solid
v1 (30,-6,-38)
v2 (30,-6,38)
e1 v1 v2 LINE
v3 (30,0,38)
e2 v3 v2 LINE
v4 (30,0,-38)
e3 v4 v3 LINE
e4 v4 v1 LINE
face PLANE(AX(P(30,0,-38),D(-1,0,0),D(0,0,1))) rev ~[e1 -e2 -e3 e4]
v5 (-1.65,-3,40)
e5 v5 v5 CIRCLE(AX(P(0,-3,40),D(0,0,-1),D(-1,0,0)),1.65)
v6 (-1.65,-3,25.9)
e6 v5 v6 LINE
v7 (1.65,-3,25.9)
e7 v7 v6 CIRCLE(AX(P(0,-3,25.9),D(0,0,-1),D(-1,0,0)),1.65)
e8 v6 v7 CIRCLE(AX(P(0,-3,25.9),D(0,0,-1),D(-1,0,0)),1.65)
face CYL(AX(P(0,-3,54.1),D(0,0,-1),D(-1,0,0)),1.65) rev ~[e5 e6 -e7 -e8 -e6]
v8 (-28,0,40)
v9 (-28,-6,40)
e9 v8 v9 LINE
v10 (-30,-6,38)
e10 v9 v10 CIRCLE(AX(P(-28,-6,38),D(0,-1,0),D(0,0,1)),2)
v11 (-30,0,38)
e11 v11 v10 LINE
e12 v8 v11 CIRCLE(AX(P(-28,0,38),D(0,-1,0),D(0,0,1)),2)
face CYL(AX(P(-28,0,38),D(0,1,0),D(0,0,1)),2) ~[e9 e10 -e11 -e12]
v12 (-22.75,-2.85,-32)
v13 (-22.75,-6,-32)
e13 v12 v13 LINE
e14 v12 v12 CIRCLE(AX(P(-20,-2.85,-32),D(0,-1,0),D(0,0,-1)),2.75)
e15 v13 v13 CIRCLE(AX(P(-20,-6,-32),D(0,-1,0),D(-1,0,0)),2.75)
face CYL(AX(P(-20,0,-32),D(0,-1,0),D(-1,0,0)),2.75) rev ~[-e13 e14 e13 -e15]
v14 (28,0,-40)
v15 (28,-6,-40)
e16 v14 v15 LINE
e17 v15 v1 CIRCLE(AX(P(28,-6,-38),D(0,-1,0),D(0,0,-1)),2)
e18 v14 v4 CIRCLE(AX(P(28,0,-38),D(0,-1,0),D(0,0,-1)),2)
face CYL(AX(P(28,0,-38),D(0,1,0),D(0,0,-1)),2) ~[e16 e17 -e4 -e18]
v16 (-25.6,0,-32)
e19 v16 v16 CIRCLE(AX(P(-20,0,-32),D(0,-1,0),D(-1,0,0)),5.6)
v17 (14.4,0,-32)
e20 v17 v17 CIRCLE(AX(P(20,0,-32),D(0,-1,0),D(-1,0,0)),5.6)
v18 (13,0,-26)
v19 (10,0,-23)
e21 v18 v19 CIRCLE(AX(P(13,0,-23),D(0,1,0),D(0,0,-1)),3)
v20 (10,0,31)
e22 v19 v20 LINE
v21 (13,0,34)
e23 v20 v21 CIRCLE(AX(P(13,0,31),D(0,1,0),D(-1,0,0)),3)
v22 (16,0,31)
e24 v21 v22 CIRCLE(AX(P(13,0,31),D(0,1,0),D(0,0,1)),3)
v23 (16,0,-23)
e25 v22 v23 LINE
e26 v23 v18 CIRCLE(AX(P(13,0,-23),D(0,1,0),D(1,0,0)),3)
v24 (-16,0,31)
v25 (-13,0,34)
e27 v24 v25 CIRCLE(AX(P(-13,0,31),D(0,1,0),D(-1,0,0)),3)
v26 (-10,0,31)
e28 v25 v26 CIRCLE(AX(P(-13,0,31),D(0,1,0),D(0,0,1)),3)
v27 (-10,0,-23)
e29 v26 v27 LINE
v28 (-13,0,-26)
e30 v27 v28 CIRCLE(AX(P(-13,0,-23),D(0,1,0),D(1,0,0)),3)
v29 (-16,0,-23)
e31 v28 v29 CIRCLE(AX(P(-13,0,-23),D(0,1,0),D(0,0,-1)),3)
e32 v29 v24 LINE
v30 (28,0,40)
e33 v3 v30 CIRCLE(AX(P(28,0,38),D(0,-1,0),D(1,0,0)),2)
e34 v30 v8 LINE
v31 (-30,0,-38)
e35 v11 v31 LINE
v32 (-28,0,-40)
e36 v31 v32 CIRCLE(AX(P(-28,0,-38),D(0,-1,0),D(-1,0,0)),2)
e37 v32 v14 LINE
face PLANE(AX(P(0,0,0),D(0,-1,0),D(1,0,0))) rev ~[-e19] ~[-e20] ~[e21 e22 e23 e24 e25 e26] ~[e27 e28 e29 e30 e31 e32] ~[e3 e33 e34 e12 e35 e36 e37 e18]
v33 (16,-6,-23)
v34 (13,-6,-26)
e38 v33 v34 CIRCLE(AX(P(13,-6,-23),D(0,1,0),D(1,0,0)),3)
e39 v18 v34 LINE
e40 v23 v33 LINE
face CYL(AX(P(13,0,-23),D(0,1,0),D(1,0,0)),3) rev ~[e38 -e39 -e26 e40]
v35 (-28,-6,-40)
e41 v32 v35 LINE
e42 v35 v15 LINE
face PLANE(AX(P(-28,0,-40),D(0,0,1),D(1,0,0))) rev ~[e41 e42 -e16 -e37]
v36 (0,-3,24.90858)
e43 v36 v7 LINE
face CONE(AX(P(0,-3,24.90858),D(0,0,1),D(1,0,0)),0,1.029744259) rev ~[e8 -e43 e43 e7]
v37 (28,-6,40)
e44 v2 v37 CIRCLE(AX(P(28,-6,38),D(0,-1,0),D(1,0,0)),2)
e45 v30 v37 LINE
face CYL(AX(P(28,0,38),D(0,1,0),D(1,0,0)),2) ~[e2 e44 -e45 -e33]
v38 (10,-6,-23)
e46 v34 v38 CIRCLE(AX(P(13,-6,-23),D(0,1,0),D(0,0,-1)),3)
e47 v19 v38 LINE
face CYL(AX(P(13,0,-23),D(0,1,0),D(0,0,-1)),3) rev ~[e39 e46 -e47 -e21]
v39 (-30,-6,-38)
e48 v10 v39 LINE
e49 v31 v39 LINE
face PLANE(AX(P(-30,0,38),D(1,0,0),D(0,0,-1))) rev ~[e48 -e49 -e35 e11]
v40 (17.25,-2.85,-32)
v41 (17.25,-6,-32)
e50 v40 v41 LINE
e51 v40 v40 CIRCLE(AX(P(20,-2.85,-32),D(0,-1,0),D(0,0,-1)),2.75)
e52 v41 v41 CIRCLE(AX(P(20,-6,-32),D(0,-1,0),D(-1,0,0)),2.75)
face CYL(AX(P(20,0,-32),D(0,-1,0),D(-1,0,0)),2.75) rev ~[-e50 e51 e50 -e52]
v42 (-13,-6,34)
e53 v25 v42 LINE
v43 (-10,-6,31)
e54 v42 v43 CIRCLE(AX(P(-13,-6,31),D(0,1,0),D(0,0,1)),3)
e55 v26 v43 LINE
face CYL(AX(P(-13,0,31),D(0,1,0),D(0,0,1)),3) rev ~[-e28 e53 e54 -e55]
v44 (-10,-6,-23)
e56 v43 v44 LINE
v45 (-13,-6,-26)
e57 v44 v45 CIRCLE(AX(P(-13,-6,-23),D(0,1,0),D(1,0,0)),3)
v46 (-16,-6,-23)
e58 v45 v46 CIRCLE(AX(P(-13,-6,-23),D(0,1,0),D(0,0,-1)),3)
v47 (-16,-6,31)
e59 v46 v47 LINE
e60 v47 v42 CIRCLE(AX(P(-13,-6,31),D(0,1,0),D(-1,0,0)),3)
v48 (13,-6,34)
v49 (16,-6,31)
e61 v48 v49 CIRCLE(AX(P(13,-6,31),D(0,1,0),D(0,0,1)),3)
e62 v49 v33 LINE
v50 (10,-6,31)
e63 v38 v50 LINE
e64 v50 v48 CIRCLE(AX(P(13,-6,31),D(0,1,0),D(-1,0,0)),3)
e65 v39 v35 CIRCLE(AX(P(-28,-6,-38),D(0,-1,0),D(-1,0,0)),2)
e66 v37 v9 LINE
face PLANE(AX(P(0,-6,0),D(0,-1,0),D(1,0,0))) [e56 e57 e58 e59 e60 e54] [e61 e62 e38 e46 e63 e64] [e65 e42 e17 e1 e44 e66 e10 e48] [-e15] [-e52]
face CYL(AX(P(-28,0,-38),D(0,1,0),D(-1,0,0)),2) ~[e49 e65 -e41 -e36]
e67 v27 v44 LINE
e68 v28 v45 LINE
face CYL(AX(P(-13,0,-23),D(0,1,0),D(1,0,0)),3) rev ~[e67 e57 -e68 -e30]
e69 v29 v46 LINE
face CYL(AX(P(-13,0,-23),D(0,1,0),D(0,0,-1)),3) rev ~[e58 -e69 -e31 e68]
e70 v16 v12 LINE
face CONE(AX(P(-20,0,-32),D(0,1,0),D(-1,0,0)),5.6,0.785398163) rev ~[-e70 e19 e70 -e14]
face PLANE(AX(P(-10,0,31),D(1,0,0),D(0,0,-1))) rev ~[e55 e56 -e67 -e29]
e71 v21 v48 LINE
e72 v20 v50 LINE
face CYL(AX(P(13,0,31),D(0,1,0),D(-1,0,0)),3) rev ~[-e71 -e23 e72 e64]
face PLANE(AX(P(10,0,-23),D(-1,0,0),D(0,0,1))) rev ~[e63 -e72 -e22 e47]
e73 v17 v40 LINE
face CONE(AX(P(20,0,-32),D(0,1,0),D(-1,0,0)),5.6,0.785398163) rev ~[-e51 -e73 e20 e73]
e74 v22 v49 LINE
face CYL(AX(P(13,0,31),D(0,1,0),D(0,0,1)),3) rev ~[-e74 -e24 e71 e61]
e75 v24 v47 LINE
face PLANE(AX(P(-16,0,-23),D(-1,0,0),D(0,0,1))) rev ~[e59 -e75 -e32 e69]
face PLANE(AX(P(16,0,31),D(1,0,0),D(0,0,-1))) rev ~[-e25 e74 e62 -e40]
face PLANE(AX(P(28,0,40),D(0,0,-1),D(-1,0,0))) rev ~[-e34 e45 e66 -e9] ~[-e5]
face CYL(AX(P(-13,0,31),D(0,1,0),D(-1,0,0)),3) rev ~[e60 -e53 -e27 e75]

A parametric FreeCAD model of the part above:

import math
import FreeCAD as App
import Part
import Sketcher
from FreeCAD import Vector
Q = App.Units.Quantity

doc = App.newDocument("Part")
body = doc.addObject("PartDesign::Body", "Body")

sketch1 = doc.addObject("Sketcher::SketchObject", "Sketch")
body.addObject(sketch1)
sketch1.AttachmentSupport = (doc.XZ_Plane, [""])
sketch1.MapMode = "FlatFace"
sketch1.addGeometry(Part.LineSegment(Vector(28, 40, 0), Vector(-28, 40, 0)), False)
sketch1.addGeometry(Part.ArcOfCircle(Part.Circle(Vector(-28, 38, 0), Vector(0, 0, 1), 2), math.radians(90), math.radians(180)), False)
sketch1.addGeometry(Part.LineSegment(Vector(-30, 38, 0), Vector(-30, -38, 0)), False)
sketch1.addGeometry(Part.ArcOfCircle(Part.Circle(Vector(-28, -38, 0), Vector(0, 0, 1), 2), math.radians(180), math.radians(270)), False)
sketch1.addGeometry(Part.LineSegment(Vector(-28, -40, 0), Vector(28, -40, 0)), False)
sketch1.addGeometry(Part.ArcOfCircle(Part.Circle(Vector(28, -38, 0), Vector(0, 0, 1), 2), math.radians(-90), math.radians(0)), False)
sketch1.addGeometry(Part.LineSegment(Vector(30, -38, 0), Vector(30, 38, 0)), False)
sketch1.addGeometry(Part.ArcOfCircle(Part.Circle(Vector(28, 38, 0), Vector(0, 0, 1), 2), math.radians(0), math.radians(90)), False)
sketch1.addGeometry(Part.ArcOfCircle(Part.Circle(Vector(-13, -23, 0), Vector(0, 0, 1), 3), math.radians(180), math.radians(270)), False)
sketch1.addGeometry(Part.LineSegment(Vector(-16, -23, 0), Vector(-16, 31, 0)), False)
sketch1.addGeometry(Part.ArcOfCircle(Part.Circle(Vector(-13, 31, 0), Vector(0, 0, 1), 3), math.radians(90), math.radians(180)), False)
sketch1.addGeometry(Part.ArcOfCircle(Part.Circle(Vector(-13, 31, 0), Vector(0, 0, 1), 3), math.radians(0), math.radians(90)), False)
sketch1.addGeometry(Part.LineSegment(Vector(-10, 31, 0), Vector(-10, -23, 0)), False)
sketch1.addGeometry(Part.ArcOfCircle(Part.Circle(Vector(-13, -23, 0), Vector(0, 0, 1), 3), math.radians(-90), math.radians(0)), False)
sketch1.addGeometry(Part.ArcOfCircle(Part.Circle(Vector(13, -23, 0), Vector(0, 0, 1), 3), math.radians(180), math.radians(270)), False)
sketch1.addGeometry(Part.LineSegment(Vector(10, -23, 0), Vector(10, 31, 0)), False)
sketch1.addGeometry(Part.ArcOfCircle(Part.Circle(Vector(13, 31, 0), Vector(0, 0, 1), 3), math.radians(90), math.radians(180)), False)
sketch1.addGeometry(Part.ArcOfCircle(Part.Circle(Vector(13, 31, 0), Vector(0, 0, 1), 3), math.radians(0), math.radians(90)), False)
sketch1.addGeometry(Part.LineSegment(Vector(16, 31, 0), Vector(16, -23, 0)), False)
sketch1.addGeometry(Part.ArcOfCircle(Part.Circle(Vector(13, -23, 0), Vector(0, 0, 1), 3), math.radians(-90), math.radians(0)), False)
sketch1.addConstraint(Sketcher.Constraint("Tangent", 0, 2, 1, 1))
sketch1.addConstraint(Sketcher.Constraint("Tangent", 1, 2, 2, 1))
sketch1.addConstraint(Sketcher.Constraint("Tangent", 2, 2, 3, 1))
sketch1.addConstraint(Sketcher.Constraint("Tangent", 3, 2, 4, 1))
sketch1.addConstraint(Sketcher.Constraint("Tangent", 4, 2, 5, 1))
sketch1.addConstraint(Sketcher.Constraint("Tangent", 5, 2, 6, 1))
sketch1.addConstraint(Sketcher.Constraint("Tangent", 6, 2, 7, 1))
sketch1.addConstraint(Sketcher.Constraint("Tangent", 7, 2, 0, 1))
sketch1.addConstraint(Sketcher.Constraint("Tangent", 8, 1, 9, 1))
sketch1.addConstraint(Sketcher.Constraint("Tangent", 9, 2, 10, 2))
sketch1.addConstraint(Sketcher.Constraint("Tangent", 10, 1, 11, 2))
sketch1.addConstraint(Sketcher.Constraint("Tangent", 11, 1, 12, 1))
sketch1.addConstraint(Sketcher.Constraint("Tangent", 12, 2, 13, 2))
sketch1.addConstraint(Sketcher.Constraint("Tangent", 13, 1, 8, 2))
sketch1.addConstraint(Sketcher.Constraint("Tangent", 14, 1, 15, 1))
sketch1.addConstraint(Sketcher.Constraint("Tangent", 15, 2, 16, 2))
sketch1.addConstraint(Sketcher.Constraint("Tangent", 16, 1, 17, 2))
sketch1.addConstraint(Sketcher.Constraint("Tangent", 17, 1, 18, 1))
sketch1.addConstraint(Sketcher.Constraint("Tangent", 18, 2, 19, 2))
sketch1.addConstraint(Sketcher.Constraint("Tangent", 19, 1, 14, 2))
sketch1.addConstraint(Sketcher.Constraint("Horizontal", 0))
sketch1.addConstraint(Sketcher.Constraint("Vertical", 2))
sketch1.addConstraint(Sketcher.Constraint("Horizontal", 4))
sketch1.addConstraint(Sketcher.Constraint("Vertical", 6))
sketch1.addConstraint(Sketcher.Constraint("Vertical", 9))
sketch1.addConstraint(Sketcher.Constraint("Vertical", 12))
sketch1.addConstraint(Sketcher.Constraint("Vertical", 15))
sketch1.addConstraint(Sketcher.Constraint("Vertical", 18))
sketch1.addConstraint(Sketcher.Constraint("Equal", 1, 3))
sketch1.addConstraint(Sketcher.Constraint("Equal", 3, 5))
sketch1.addConstraint(Sketcher.Constraint("Equal", 5, 7))
sketch1.addConstraint(Sketcher.Constraint("Equal", 8, 10))
sketch1.addConstraint(Sketcher.Constraint("Equal", 10, 11))
sketch1.addConstraint(Sketcher.Constraint("Equal", 13, 14))
sketch1.addConstraint(Sketcher.Constraint("Equal", 14, 16))
sketch1.addConstraint(Sketcher.Constraint("Equal", 16, 17))
sketch1.addConstraint(Sketcher.Constraint("Symmetric", 1, 3, 5, 3, -1, 1))
sketch1.addConstraint(Sketcher.Constraint("Symmetric", 8, 3, 14, 3, -2))
sketch1.addConstraint(Sketcher.Constraint("Symmetric", 10, 1, 16, 1, -2))
sketch1.addConstraint(Sketcher.Constraint("Vertical", 13, 3, 10, 1))
sketch1.addConstraint(Sketcher.Constraint("Vertical", 10, 1, 13, 1))
sketch1.addConstraint(Sketcher.Constraint("Vertical", 16, 1, 19, 1))
sketch1.addConstraint(Sketcher.Constraint("Radius", 1, Q("2 mm")))
sketch1.addConstraint(Sketcher.Constraint("Radius", 8, Q("3 mm")))
sketch1.addConstraint(Sketcher.Constraint("DistanceX", 0, 2, 0, 1, Q("56 mm")))
sketch1.addConstraint(Sketcher.Constraint("DistanceY", 2, 2, 2, 1, Q("76 mm")))
sketch1.addConstraint(Sketcher.Constraint("DistanceY", 9, 1, 9, 2, Q("54 mm")))
sketch1.addConstraint(Sketcher.Constraint("DistanceX", 8, 3, -1, 1, Q("13 mm")))
sketch1.addConstraint(Sketcher.Constraint("DistanceY", 8, 3, -1, 1, Q("23 mm")))
pad1 = doc.addObject("PartDesign::Pad", "Pad")
body.addObject(pad1)
pad1.Profile = sketch1
pad1.Length = 6

sketch2 = doc.addObject("Sketcher::SketchObject", "Sketch001")
body.addObject(sketch2)
sketch2.AttachmentSupport = (doc.XZ_Plane, [""])
sketch2.MapMode = "FlatFace"
sketch2.addGeometry(Part.Circle(Vector(-20, -32, 0), Vector(0, 0, 1), 2.75), False)
sketch2.addGeometry(Part.Circle(Vector(20, -32, 0), Vector(0, 0, 1), 2.75), False)
sketch2.addConstraint(Sketcher.Constraint("Equal", 0, 1))
sketch2.addConstraint(Sketcher.Constraint("Symmetric", 0, 3, 1, 3, -2))
sketch2.addConstraint(Sketcher.Constraint("Diameter", 0, Q("5.5 mm")))
sketch2.addConstraint(Sketcher.Constraint("DistanceX", 0, 3, -1, 1, Q("20 mm")))
sketch2.addConstraint(Sketcher.Constraint("DistanceY", 0, 3, -1, 1, Q("32 mm")))
doc.recompute()
hole = doc.addObject("PartDesign::Hole", "Hole")
body.addObject(hole)
hole.Profile = sketch2
hole.ThreadType = "None"
hole.Diameter = 5.5
hole.DepthType = "Dimension"
hole.Depth = 19
hole.DrillPoint = "Angled"
hole.DrillPointAngle = 118
hole.HoleCutType = "Countersink"
hole.HoleCutDiameter = 11.2
hole.HoleCutCountersinkAngle = 90
hole.Reversed = True

sketch3 = doc.addObject("Sketcher::SketchObject", "Sketch002")
body.addObject(sketch3)
sketch3.AttachmentSupport = (doc.XY_Plane, [""])
sketch3.MapMode = "FlatFace"
sketch3.AttachmentOffset = App.Placement(Vector(0, 0, 40), App.Rotation())
sketch3.addGeometry(Part.Circle(Vector(0, -3, 0), Vector(0, 0, 1), 1.65), False)
sketch3.addConstraint(Sketcher.Constraint("PointOnObject", 0, 3, -2))
sketch3.addConstraint(Sketcher.Constraint("Diameter", 0, Q("3.3 mm")))
sketch3.addConstraint(Sketcher.Constraint("DistanceY", 0, 3, -1, 1, Q("3 mm")))
doc.recompute()
hole2 = doc.addObject("PartDesign::Hole", "Hole001")
body.addObject(hole2)
hole2.Profile = sketch3
hole2.ThreadType = "None"
hole2.Diameter = 3.3
hole2.DepthType = "Dimension"
hole2.Depth = 14.1
hole2.DrillPoint = "Angled"
hole2.DrillPointAngle = 118

doc.recompute()
